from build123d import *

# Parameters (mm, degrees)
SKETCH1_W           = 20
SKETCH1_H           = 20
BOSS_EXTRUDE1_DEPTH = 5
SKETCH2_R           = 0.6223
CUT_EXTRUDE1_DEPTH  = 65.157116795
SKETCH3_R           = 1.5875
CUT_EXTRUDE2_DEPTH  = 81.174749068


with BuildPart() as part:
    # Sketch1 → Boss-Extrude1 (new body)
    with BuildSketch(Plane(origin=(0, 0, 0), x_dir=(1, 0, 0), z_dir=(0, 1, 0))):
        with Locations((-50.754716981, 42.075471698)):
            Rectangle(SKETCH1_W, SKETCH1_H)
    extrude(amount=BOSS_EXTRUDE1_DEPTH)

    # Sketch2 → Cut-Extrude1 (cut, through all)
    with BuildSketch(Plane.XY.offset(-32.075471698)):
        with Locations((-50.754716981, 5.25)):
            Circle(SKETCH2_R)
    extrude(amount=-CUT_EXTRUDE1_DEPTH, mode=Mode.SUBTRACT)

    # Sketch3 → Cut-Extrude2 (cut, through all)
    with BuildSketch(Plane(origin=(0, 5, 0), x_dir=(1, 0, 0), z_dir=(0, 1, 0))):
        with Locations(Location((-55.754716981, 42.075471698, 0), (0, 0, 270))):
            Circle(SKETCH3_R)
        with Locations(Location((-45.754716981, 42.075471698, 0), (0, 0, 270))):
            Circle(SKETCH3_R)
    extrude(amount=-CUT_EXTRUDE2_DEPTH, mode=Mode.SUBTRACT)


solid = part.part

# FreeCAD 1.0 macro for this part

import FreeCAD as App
import Part
import Sketcher

V = App.Vector

doc = App.newDocument("Part")
params = doc.addObject("Spreadsheet::Sheet", "Params")
for row, (alias, value) in enumerate([
    ("sketch1_width", "20 mm"),
    ("pad1_length", "5 mm"),
], start=1):
    params.set(f"A{row}", alias)
    params.set(f"B{row}", "=" + value)
    params.setAlias(f"B{row}", alias)

body = doc.addObject("PartDesign::Body", "Body")

# Sketch on XZ plane
sketch1 = body.newObject("Sketcher::SketchObject", "Sketch")
sketch1.AttachmentSupport = (doc.getObject("XZ_Plane"), [""])
sketch1.MapMode = "FlatFace"
sketch1.addGeometry(Part.LineSegment(V(-61, -52, 0), V(-61, -32, 0)), False)
sketch1.addGeometry(Part.LineSegment(V(-61, -32, 0), V(-41, -32, 0)), False)
sketch1.addGeometry(Part.LineSegment(V(-41, -32, 0), V(-41, -52, 0)), False)
sketch1.addGeometry(Part.LineSegment(V(-41, -52, 0), V(-61, -52, 0)), False)
sketch1.addConstraint(Sketcher.Constraint("Coincident", 0, 2, 1, 1))
sketch1.addConstraint(Sketcher.Constraint("Coincident", 1, 2, 2, 1))
sketch1.addConstraint(Sketcher.Constraint("Coincident", 2, 2, 3, 1))
sketch1.addConstraint(Sketcher.Constraint("Coincident", 3, 2, 0, 1))
sketch1.addConstraint(Sketcher.Constraint("Vertical", 0))
sketch1.addConstraint(Sketcher.Constraint("Horizontal", 1))
sketch1.addConstraint(Sketcher.Constraint("Vertical", 2))
sketch1.addConstraint(Sketcher.Constraint("Horizontal", 3))
sketch1.addConstraint(Sketcher.Constraint("Equal", 3, 0))
sketch1.addConstraint(Sketcher.Constraint("DistanceX", 1, 1, 1, 2, 20.0))
sketch1.addConstraint(Sketcher.Constraint("DistanceY", 0, 2, -1, 1, 32.075472))
sketch1.addConstraint(Sketcher.Constraint("DistanceX", 0, 2, -1, 1, 60.754717))
sketch1.setExpression("Constraints[9]", "Params.sketch1_width")
pad1 = body.newObject("PartDesign::Pad", "Pad")
pad1.Profile = sketch1
pad1.setExpression("Length", "Params.pad1_length")
pad1.Reversed = True

# Sketch on XY plane
sketch2 = body.newObject("Sketcher::SketchObject", "Sketch001")
sketch2.AttachmentSupport = (doc.getObject("XY_Plane"), [""])
sketch2.MapMode = "FlatFace"
sketch2.AttachmentOffset = App.Placement(V(0, 0, -32.075472), App.Rotation())
sketch2.addGeometry(Part.Circle(V(-50.8, 5.2, 0), V(0, 0, 1), 0.6), False)
sketch2.addConstraint(Sketcher.Constraint("Diameter", 0, 1.2446))
sketch2.addConstraint(Sketcher.Constraint("DistanceY", -1, 1, 0, 3, 5.25))
sketch2.addConstraint(Sketcher.Constraint("DistanceX", 0, 3, -1, 1, 50.754717))
pocket1 = body.newObject("PartDesign::Pocket", "Pocket")
pocket1.Profile = sketch2
pocket1.Type = "ThroughAll"

# Sketch on XZ plane
sketch3 = body.newObject("Sketcher::SketchObject", "Sketch002")
sketch3.AttachmentSupport = (doc.getObject("XZ_Plane"), [""])
sketch3.MapMode = "FlatFace"
sketch3.AttachmentOffset = App.Placement(V(0, 0, -5), App.Rotation())
sketch3.addGeometry(Part.Circle(V(-55.8, -42.1, 0), V(0, 0, 1), 1.6), False)
sketch3.addGeometry(Part.Circle(V(-45.8, -42.1, 0), V(0, 0, 1), 1.6), False)
sketch3.addConstraint(Sketcher.Constraint("Equal", 0, 1))
sketch3.addConstraint(Sketcher.Constraint("Horizontal", 0, 3, 1, 3))
sketch3.addConstraint(Sketcher.Constraint("Diameter", 0, 3.175))
sketch3.addConstraint(Sketcher.Constraint("DistanceX", 0, 3, 1, 3, 10.0))
sketch3.addConstraint(Sketcher.Constraint("DistanceY", 0, 3, -1, 1, 42.075472))
sketch3.addConstraint(Sketcher.Constraint("DistanceX", 0, 3, -1, 1, 55.754717))
pocket2 = body.newObject("PartDesign::Pocket", "Pocket001")
pocket2.Profile = sketch3
pocket2.Type = "ThroughAll"
pocket2.Reversed = True

doc.recompute()
